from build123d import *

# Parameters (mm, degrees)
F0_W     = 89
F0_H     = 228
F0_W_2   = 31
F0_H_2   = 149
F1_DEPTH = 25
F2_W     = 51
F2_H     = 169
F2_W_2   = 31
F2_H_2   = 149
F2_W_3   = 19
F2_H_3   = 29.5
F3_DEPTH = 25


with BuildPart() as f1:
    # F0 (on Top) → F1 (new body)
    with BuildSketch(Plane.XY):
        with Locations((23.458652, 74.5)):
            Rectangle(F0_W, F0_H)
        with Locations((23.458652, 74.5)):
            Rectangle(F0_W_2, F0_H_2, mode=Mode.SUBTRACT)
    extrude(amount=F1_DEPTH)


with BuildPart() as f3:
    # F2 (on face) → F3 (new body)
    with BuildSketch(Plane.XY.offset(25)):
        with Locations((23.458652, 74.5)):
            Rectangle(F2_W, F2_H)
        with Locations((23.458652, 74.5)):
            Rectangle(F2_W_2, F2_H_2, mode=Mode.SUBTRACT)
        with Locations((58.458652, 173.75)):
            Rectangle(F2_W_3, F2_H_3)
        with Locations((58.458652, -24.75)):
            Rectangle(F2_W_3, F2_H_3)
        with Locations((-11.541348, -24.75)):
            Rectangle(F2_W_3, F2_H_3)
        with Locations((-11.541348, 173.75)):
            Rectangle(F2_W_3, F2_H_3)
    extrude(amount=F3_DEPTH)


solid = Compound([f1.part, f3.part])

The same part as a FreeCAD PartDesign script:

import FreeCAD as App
import Part
import Sketcher
from FreeCAD import Vector

doc = App.newDocument("Part")
body = doc.addObject("PartDesign::Body", "Body")

sketch1 = body.newObject("Sketcher::SketchObject", "Sketch")
sketch1.AttachmentSupport = (doc.getObject("XY_Plane"), [""])
sketch1.MapMode = "FlatFace"
sketch1.addGeometry([
    Part.LineSegment(Vector(-21, 188, 0), Vector(-21, -40, 0)),
    Part.LineSegment(Vector(-21, -40, 0), Vector(68, -40, 0)),
    Part.LineSegment(Vector(68, -40, 0), Vector(68, 188, 0)),
    Part.LineSegment(Vector(68, 188, 0), Vector(-21, 188, 0)),
    Part.LineSegment(Vector(39, 0, 0), Vector(8, 0, 0)),
    Part.LineSegment(Vector(8, 0, 0), Vector(8, 149, 0)),
    Part.LineSegment(Vector(8, 149, 0), Vector(39, 149, 0)),
    Part.LineSegment(Vector(39, 149, 0), Vector(39, 0, 0)),
], False)
sketch1.addConstraint([
    Sketcher.Constraint("Coincident", 0, 2, 1, 1),
    Sketcher.Constraint("Coincident", 1, 2, 2, 1),
    Sketcher.Constraint("Coincident", 2, 2, 3, 1),
    Sketcher.Constraint("Coincident", 3, 2, 0, 1),
    Sketcher.Constraint("Coincident", 4, 2, 5, 1),
    Sketcher.Constraint("Coincident", 5, 2, 6, 1),
    Sketcher.Constraint("Coincident", 6, 2, 7, 1),
    Sketcher.Constraint("Coincident", 7, 2, 4, 1),
    Sketcher.Constraint("Vertical", 0),
    Sketcher.Constraint("Horizontal", 1),
    Sketcher.Constraint("Vertical", 2),
    Sketcher.Constraint("Horizontal", 3),
    Sketcher.Constraint("Horizontal", 4),
    Sketcher.Constraint("Vertical", 5),
    Sketcher.Constraint("Horizontal", 6),
    Sketcher.Constraint("Vertical", 7),
    Sketcher.Constraint("PointOnObject", 4, 2, -1),
    Sketcher.Constraint("DistanceX", 1, 1, 1, 2, 89.0),
    Sketcher.Constraint("DistanceX", 4, 2, 4, 1, 31.0),
    Sketcher.Constraint("DistanceY", 0, 2, 0, 1, 228.0),
    Sketcher.Constraint("DistanceY", 5, 1, 5, 2, 149.0),
    Sketcher.Constraint("DistanceX", 0, 2, 4, 2, 29.0),
    Sketcher.Constraint("DistanceY", 0, 2, -1, 1, 39.5),
    Sketcher.Constraint("DistanceX", -1, 1, 1, 2, 67.958652),
])
pad1 = body.newObject("PartDesign::Pad", "Pad")
pad1.Profile = sketch1
pad1.Length = 25
body2 = doc.addObject("PartDesign::Body", "Body001")
body2.AllowCompound = True

sketch2 = body2.newObject("Sketcher::SketchObject", "Sketch001")
sketch2.AttachmentSupport = (doc.getObject("XY_Plane001"), [""])
sketch2.MapMode = "FlatFace"
sketch2.AttachmentOffset = App.Placement(Vector(0, 0, 25), App.Rotation())
sketch2.addGeometry([
    Part.LineSegment(Vector(-2, 159, 0), Vector(-2, -10, 0)),
    Part.LineSegment(Vector(-2, -10, 0), Vector(49, -10, 0)),
    Part.LineSegment(Vector(49, -10, 0), Vector(49, 159, 0)),
    Part.LineSegment(Vector(49, 159, 0), Vector(-2, 159, 0)),
    Part.LineSegment(Vector(39, 0, 0), Vector(8, 0, 0)),
    Part.LineSegment(Vector(8, 0, 0), Vector(8, 149, 0)),
    Part.LineSegment(Vector(8, 149, 0), Vector(39, 149, 0)),
    Part.LineSegment(Vector(39, 149, 0), Vector(39, 0, 0)),
    Part.LineSegment(Vector(49, 188, 0), Vector(49, 159, 0)),
    Part.LineSegment(Vector(49, 159, 0), Vector(68, 159, 0)),
    Part.LineSegment(Vector(68, 159, 0), Vector(68, 188, 0)),
    Part.LineSegment(Vector(68, 188, 0), Vector(49, 188, 0)),
    Part.LineSegment(Vector(49, -10, 0), Vector(49, -40, 0)),
    Part.LineSegment(Vector(49, -40, 0), Vector(68, -40, 0)),
    Part.LineSegment(Vector(68, -40, 0), Vector(68, -10, 0)),
    Part.LineSegment(Vector(68, -10, 0), Vector(49, -10, 0)),
    Part.LineSegment(Vector(-21, -10, 0), Vector(-21, -40, 0)),
    Part.LineSegment(Vector(-21, -40, 0), Vector(-2, -40, 0)),
    Part.LineSegment(Vector(-2, -40, 0), Vector(-2, -10, 0)),
    Part.LineSegment(Vector(-2, -10, 0), Vector(-21, -10, 0)),
    Part.LineSegment(Vector(-21, 188, 0), Vector(-21, 159, 0)),
    Part.LineSegment(Vector(-21, 159, 0), Vector(-2, 159, 0)),
    Part.LineSegment(Vector(-2, 159, 0), Vector(-2, 188, 0)),
    Part.LineSegment(Vector(-2, 188, 0), Vector(-21, 188, 0)),
], False)
sketch2.addConstraint([
    Sketcher.Constraint("Coincident", 0, 2, 1, 1),
    Sketcher.Constraint("Coincident", 1, 2, 2, 1),
    Sketcher.Constraint("Coincident", 2, 2, 3, 1),
    Sketcher.Constraint("Coincident", 3, 2, 0, 1),
    Sketcher.Constraint("Coincident", 4, 2, 5, 1),
    Sketcher.Constraint("Coincident", 5, 2, 6, 1),
    Sketcher.Constraint("Coincident", 6, 2, 7, 1),
    Sketcher.Constraint("Coincident", 7, 2, 4, 1),
    Sketcher.Constraint("Coincident", 8, 2, 9, 1),
    Sketcher.Constraint("Coincident", 9, 2, 10, 1),
    Sketcher.Constraint("Coincident", 10, 2, 11, 1),
    Sketcher.Constraint("Coincident", 11, 2, 8, 1),
    Sketcher.Constraint("Coincident", 12, 2, 13, 1),
    Sketcher.Constraint("Coincident", 13, 2, 14, 1),
    Sketcher.Constraint("Coincident", 14, 2, 15, 1),
    Sketcher.Constraint("Coincident", 15, 2, 12, 1),
    Sketcher.Constraint("Coincident", 16, 2, 17, 1),
    Sketcher.Constraint("Coincident", 17, 2, 18, 1),
    Sketcher.Constraint("Coincident", 18, 2, 19, 1),
    Sketcher.Constraint("Coincident", 19, 2, 16, 1),
    Sketcher.Constraint("Coincident", 20, 2, 21, 1),
    Sketcher.Constraint("Coincident", 21, 2, 22, 1),
    Sketcher.Constraint("Coincident", 22, 2, 23, 1),
    Sketcher.Constraint("Coincident", 23, 2, 20, 1),
    Sketcher.Constraint("Vertical", 0),
    Sketcher.Constraint("Horizontal", 1),
    Sketcher.Constraint("Vertical", 2),
    Sketcher.Constraint("Horizontal", 3),
    Sketcher.Constraint("Horizontal", 4),
    Sketcher.Constraint("Vertical", 5),
    Sketcher.Constraint("Horizontal", 6),
    Sketcher.Constraint("Vertical", 7),
    Sketcher.Constraint("Vertical", 8),
    Sketcher.Constraint("Horizontal", 9),
    Sketcher.Constraint("Vertical", 10),
    Sketcher.Constraint("Horizontal", 11),
    Sketcher.Constraint("Vertical", 12),
    Sketcher.Constraint("Horizontal", 13),
    Sketcher.Constraint("Vertical", 14),
    Sketcher.Constraint("Horizontal", 15),
    Sketcher.Constraint("Vertical", 16),
    Sketcher.Constraint("Horizontal", 17),
    Sketcher.Constraint("Vertical", 18),
    Sketcher.Constraint("Horizontal", 19),
    Sketcher.Constraint("Vertical", 20),
    Sketcher.Constraint("Horizontal", 21),
    Sketcher.Constraint("Vertical", 22),
    Sketcher.Constraint("Horizontal", 23),
    Sketcher.Constraint("Coincident", 8, 2, 2, 2),
    Sketcher.Constraint("Coincident", 15, 2, 1, 2),
    Sketcher.Constraint("Coincident", 18, 2, 0, 2),
    Sketcher.Constraint("Coincident", 21, 2, 3, 2),
    Sketcher.Constraint("PointOnObject", 4, 2, -1),
    Sketcher.Constraint("Horizontal", 13, 2, 16, 2),
    Sketcher.Constraint("Horizontal", 11, 2, 22, 2),
    Sketcher.Constraint("Vertical", 10, 2, 13, 2),
    Sketcher.Constraint("Vertical", 19, 2, 20, 2),
    Sketcher.Constraint("Equal", 15, 17),
    Sketcher.Constraint("Equal", 10, 12),
    Sketcher.Constraint("DistanceX", 1, 1, 1, 2, 51.0),
    Sketcher.Constraint("DistanceX", 4, 2, 4, 1, 31.0),
    Sketcher.Constraint("DistanceX", 9, 1, 9, 2, 19.0),
    Sketcher.Constraint("DistanceY", 0, 2, 0, 1, 169.0),
    Sketcher.Constraint("DistanceY", 5, 1, 5, 2, 149.0),
    Sketcher.Constraint("DistanceY", 8, 2, 8, 1, 29.5),
    Sketcher.Constraint("DistanceY", 0, 2, -1, 1, 10.0),
    Sketcher.Constraint("DistanceX", 0, 2, 4, 2, 10.0),
    Sketcher.Constraint("DistanceX", 0, 2, -1, 1, 2.041348),
])
pad2 = body2.newObject("PartDesign::Pad", "Pad001")
pad2.Profile = sketch2
pad2.Length = 25

doc.recompute()
